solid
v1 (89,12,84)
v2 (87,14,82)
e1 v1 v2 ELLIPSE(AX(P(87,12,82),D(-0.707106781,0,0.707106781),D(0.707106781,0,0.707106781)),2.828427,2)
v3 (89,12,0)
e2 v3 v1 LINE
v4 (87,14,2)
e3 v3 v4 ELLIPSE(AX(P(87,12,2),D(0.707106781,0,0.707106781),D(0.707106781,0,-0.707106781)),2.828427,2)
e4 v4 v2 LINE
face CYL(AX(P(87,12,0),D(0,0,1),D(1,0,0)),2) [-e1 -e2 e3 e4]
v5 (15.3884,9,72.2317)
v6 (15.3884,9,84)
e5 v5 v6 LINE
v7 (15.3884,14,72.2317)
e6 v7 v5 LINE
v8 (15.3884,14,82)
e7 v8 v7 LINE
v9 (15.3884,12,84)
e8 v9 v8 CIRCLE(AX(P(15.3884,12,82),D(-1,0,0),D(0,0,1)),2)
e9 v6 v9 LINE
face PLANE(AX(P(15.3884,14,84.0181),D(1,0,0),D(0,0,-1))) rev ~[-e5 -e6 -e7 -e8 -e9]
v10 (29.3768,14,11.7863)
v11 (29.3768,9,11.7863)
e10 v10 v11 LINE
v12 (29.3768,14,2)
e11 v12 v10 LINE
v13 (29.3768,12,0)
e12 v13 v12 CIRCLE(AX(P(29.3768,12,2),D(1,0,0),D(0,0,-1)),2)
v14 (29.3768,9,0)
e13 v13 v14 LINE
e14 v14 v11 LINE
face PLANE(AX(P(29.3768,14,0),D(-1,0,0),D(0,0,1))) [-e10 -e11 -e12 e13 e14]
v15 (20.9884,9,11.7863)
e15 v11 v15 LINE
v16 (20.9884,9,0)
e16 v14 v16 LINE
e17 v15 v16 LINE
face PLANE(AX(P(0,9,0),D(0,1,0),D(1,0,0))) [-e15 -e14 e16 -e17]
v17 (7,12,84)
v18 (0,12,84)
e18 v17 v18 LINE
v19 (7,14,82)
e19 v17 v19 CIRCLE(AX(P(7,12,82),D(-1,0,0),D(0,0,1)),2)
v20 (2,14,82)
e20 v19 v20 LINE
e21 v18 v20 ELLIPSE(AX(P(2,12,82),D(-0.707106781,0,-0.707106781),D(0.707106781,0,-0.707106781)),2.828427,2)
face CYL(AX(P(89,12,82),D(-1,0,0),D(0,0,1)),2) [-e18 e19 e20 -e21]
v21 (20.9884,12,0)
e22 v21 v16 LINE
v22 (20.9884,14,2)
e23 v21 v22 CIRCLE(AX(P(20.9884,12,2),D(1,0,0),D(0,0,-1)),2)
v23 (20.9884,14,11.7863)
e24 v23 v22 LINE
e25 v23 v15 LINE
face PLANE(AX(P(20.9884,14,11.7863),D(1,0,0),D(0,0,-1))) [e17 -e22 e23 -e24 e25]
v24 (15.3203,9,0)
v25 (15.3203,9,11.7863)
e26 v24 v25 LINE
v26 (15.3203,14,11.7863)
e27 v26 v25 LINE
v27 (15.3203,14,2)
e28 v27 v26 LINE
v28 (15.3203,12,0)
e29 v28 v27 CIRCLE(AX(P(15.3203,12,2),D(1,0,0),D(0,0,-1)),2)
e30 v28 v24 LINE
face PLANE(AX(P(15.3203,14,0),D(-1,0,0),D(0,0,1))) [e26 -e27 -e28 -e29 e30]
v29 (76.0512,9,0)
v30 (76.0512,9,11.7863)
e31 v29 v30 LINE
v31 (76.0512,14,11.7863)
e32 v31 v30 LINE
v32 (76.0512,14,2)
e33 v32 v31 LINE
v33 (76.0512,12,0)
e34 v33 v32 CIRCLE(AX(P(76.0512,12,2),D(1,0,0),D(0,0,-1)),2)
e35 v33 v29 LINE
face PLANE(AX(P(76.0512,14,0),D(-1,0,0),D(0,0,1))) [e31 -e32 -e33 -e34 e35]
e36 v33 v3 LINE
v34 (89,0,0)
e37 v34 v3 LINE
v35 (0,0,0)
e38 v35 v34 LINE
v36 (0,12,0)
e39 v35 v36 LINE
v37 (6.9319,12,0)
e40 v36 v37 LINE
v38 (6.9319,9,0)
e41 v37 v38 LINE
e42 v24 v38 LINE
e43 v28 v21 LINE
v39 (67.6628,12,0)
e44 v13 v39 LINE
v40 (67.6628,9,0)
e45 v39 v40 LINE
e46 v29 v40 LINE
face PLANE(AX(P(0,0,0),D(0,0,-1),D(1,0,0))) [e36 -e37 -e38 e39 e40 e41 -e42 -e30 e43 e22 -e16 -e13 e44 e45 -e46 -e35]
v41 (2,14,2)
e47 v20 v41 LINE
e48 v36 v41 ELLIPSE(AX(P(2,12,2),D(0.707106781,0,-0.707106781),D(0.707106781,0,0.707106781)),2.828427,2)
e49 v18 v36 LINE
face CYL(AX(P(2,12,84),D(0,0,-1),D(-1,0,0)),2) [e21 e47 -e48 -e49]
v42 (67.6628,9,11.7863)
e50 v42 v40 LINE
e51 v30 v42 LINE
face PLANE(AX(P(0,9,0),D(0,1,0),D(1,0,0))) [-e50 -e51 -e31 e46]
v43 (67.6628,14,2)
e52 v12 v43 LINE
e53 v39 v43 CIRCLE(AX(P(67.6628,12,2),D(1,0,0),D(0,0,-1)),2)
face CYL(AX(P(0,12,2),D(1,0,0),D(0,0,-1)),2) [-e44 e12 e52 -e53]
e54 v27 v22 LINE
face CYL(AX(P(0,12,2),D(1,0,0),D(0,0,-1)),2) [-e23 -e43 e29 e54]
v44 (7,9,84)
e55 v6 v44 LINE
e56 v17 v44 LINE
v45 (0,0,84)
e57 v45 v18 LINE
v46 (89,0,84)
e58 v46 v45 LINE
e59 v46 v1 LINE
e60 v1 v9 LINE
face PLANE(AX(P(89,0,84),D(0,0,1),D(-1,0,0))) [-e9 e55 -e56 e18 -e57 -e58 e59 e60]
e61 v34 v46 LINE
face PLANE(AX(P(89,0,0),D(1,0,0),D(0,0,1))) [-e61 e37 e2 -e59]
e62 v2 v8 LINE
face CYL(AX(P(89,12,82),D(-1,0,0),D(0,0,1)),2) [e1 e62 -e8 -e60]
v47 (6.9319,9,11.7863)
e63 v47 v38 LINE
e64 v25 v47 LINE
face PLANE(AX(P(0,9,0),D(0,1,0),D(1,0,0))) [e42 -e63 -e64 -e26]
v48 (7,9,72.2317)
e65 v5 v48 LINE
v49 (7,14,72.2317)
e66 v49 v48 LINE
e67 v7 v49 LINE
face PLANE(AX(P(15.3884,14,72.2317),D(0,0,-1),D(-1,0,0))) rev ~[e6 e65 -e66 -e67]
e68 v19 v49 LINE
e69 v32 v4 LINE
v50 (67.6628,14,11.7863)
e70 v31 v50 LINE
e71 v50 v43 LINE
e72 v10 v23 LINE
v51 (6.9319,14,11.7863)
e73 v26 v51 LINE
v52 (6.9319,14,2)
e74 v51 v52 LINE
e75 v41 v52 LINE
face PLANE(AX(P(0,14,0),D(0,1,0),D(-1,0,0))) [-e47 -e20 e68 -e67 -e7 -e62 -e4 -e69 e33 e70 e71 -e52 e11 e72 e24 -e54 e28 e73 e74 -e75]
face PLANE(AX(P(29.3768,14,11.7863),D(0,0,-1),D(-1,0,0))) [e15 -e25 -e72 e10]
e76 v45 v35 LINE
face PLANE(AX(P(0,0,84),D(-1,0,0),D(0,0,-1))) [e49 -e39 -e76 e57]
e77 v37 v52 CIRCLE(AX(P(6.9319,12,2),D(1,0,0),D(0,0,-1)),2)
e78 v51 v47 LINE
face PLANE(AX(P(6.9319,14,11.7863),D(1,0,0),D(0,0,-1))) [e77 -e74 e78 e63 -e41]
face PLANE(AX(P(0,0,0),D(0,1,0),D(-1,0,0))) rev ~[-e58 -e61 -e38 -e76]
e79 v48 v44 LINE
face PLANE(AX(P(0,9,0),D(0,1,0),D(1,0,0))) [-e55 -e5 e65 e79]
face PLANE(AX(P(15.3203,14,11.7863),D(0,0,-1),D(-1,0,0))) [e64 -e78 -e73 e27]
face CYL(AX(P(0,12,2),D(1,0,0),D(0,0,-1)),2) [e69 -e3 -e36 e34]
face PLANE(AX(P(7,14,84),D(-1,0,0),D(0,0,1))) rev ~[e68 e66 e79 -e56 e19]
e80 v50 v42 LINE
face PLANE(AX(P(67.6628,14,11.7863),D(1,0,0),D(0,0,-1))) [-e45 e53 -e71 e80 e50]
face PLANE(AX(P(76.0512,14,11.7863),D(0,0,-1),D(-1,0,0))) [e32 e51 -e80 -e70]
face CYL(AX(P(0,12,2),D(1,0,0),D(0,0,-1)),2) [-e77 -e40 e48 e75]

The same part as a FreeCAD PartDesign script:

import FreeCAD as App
import Part
import Sketcher

V = App.Vector
Q = App.Units.Quantity


def edges_at(feature, points):
    """Names of the edges that pass closest to the given points."""
    edges = feature.Shape.Edges
    near = lambda p: min(range(len(edges)), key=lambda i: edges[i].distToShape(Part.Vertex(*p))[0])
    return sorted({f"Edge{near(p) + 1}" for p in points})


def add_polygon(sketch, points):
    """Adds a closed chain of lines whose ends are joined by coincident constraints."""
    first, n = sketch.GeometryCount, len(points)
    for a, b in zip(points, points[1:] + points[:1]):
        sketch.addGeometry(Part.LineSegment(App.Vector(*a, 0), App.Vector(*b, 0)), False)
    for i in range(n):
        sketch.addConstraint(Sketcher.Constraint("Coincident", first + i, 2, first + (i + 1) % n, 1))

doc = App.newDocument("Part")
body = doc.addObject("PartDesign::Body", "Body")

# Sketch on XZ plane
sketch1 = body.newObject("Sketcher::SketchObject", "Sketch")
sketch1.AttachmentSupport = (doc.getObject("XZ_Plane"), [""])
sketch1.MapMode = "FlatFace"
add_polygon(sketch1, [(89, 0), (0, 0), (0, 84), (89, 84)])  # lines 0-3
sketch1.addConstraint(Sketcher.Constraint("Horizontal", 0))
sketch1.addConstraint(Sketcher.Constraint("Vertical", 1))
sketch1.addConstraint(Sketcher.Constraint("Horizontal", 2))
sketch1.addConstraint(Sketcher.Constraint("Vertical", 3))
sketch1.addConstraint(Sketcher.Constraint("Coincident", 0, 2, -1, 1))
sketch1.addConstraint(Sketcher.Constraint("DistanceX", 0, 2, 0, 1, Q("89 mm")))
sketch1.addConstraint(Sketcher.Constraint("DistanceY", 1, 1, 1, 2, Q("84 mm")))
pad1 = body.newObject("PartDesign::Pad", "Pad")
pad1.Profile = sketch1
pad1.Length = 14
pad1.Reversed = True
doc.recompute()

fillet = body.newObject("PartDesign::Fillet", "Fillet")
fillet.Base = (pad1, edges_at(pad1, [
    (44.5, 14, 0),
    (0, 14, 42),
    (89, 14, 42),
    (44.5, 14, 84),
]))
fillet.Radius = 2

# Sketch on XZ plane
sketch2 = body.newObject("Sketcher::SketchObject", "Sketch001")
sketch2.AttachmentSupport = (doc.getObject("XZ_Plane"), [""])
sketch2.MapMode = "FlatFace"
sketch2.AttachmentOffset = App.Placement(V(0, 0, -14), App.Rotation())
add_polygon(sketch2, [(76.0512, 11.7863), (76.0512, 0), (67.6628, 0), (67.6628, 11.7863)])  # lines 0-3
add_polygon(sketch2, [(15.3203, 11.7863), (15.3203, 0), (6.9319, 0), (6.9319, 11.7863)])  # lines 4-7
add_polygon(sketch2, [(29.3768, 11.7863), (29.3768, 0), (20.9884, 0), (20.9884, 11.7863)])  # lines 8-11
add_polygon(sketch2, [(7, 84.0181), (15.3884, 84.0181), (15.3884, 72.2317), (7, 72.2317)])  # lines 12-15
sketch2.addConstraint(Sketcher.Constraint("Vertical", 0))
sketch2.addConstraint(Sketcher.Constraint("Horizontal", 1))
sketch2.addConstraint(Sketcher.Constraint("Vertical", 2))
sketch2.addConstraint(Sketcher.Constraint("Horizontal", 3))
sketch2.addConstraint(Sketcher.Constraint("Vertical", 4))
sketch2.addConstraint(Sketcher.Constraint("Horizontal", 5))
sketch2.addConstraint(Sketcher.Constraint("Vertical", 6))
sketch2.addConstraint(Sketcher.Constraint("Horizontal", 7))
sketch2.addConstraint(Sketcher.Constraint("Vertical", 8))
sketch2.addConstraint(Sketcher.Constraint("Horizontal", 9))
sketch2.addConstraint(Sketcher.Constraint("Vertical", 10))
sketch2.addConstraint(Sketcher.Constraint("Horizontal", 11))
sketch2.addConstraint(Sketcher.Constraint("Horizontal", 12))
sketch2.addConstraint(Sketcher.Constraint("Vertical", 13))
sketch2.addConstraint(Sketcher.Constraint("Horizontal", 14))
sketch2.addConstraint(Sketcher.Constraint("Vertical", 15))
sketch2.addConstraint(Sketcher.Constraint("PointOnObject", 0, 2, -1))
sketch2.addConstraint(Sketcher.Constraint("PointOnObject", 4, 2, -1))
sketch2.addConstraint(Sketcher.Constraint("PointOnObject", 8, 2, -1))
sketch2.addConstraint(Sketcher.Constraint("Horizontal", 3, 2, 6, 2))
sketch2.addConstraint(Sketcher.Constraint("Horizontal", 7, 2, 10, 2))
sketch2.addConstraint(Sketcher.Constraint("Equal", 3, 5))
sketch2.addConstraint(Sketcher.Constraint("Equal", 7, 9))
sketch2.addConstraint(Sketcher.Constraint("Equal", 11, 12))
sketch2.addConstraint(Sketcher.Constraint("Equal", 10, 13))
sketch2.addConstraint(Sketcher.Constraint("DistanceX", -1, 1, 14, 2, Q("7 mm")))
sketch2.addConstraint(Sketcher.Constraint("DistanceX", 12, 2, 10, 2, Q("5.6 mm")))
sketch2.addConstraint(Sketcher.Constraint("DistanceX", 1, 2, 1, 1, Q("8.3884 mm")))
sketch2.addConstraint(Sketcher.Constraint("DistanceY", 0, 2, 0, 1, Q("11.7863 mm")))
sketch2.addConstraint(Sketcher.Constraint("DistanceX", -1, 1, 5, 2, Q("6.932 mm")))
sketch2.addConstraint(Sketcher.Constraint("DistanceY", -1, 1, 12, 2, Q("84.018 mm")))
sketch2.addConstraint(Sketcher.Constraint("DistanceX", 4, 2, 0, 2, Q("60.731 mm")))
pocket1 = body.newObject("PartDesign::Pocket", "Pocket")
pocket1.Profile = sketch2
pocket1.Length = 5
pocket1.Reversed = True

doc.recompute()
